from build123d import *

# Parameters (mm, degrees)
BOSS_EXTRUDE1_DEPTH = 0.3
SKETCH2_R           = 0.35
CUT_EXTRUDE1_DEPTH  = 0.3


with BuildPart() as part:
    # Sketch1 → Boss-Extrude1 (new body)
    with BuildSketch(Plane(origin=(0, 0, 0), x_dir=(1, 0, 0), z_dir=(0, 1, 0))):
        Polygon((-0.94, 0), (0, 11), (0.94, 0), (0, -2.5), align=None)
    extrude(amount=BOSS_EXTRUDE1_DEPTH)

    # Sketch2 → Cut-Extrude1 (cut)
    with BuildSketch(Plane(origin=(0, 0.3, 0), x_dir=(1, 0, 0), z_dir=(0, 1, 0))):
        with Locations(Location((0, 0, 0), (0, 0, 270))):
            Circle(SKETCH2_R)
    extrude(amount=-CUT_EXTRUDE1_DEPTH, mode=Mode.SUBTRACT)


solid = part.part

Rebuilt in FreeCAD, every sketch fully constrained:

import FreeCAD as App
import Part
import Sketcher
from FreeCAD import Vector
Q = App.Units.Quantity

doc = App.newDocument("Part")
body = doc.addObject("PartDesign::Body", "Body")

# Sketch on XZ plane
sketch1 = body.newObject("Sketcher::SketchObject", "Sketch")
sketch1.AttachmentSupport = (doc.getObject("XZ_Plane"), [""])
sketch1.MapMode = "FlatFace"
sketch1.addGeometry([
    Part.LineSegment(Vector(0, -11, 0), Vector(-0.94, 0, 0)),
    Part.LineSegment(Vector(-0.94, 0, 0), Vector(0, 2.5, 0)),
    Part.LineSegment(Vector(0, 2.5, 0), Vector(0.94, 0, 0)),
    Part.LineSegment(Vector(0.94, 0, 0), Vector(0, -11, 0)),
], False)
sketch1.addConstraint([
    Sketcher.Constraint("Coincident", 0, 2, 1, 1),
    Sketcher.Constraint("Coincident", 1, 2, 2, 1),
    Sketcher.Constraint("Coincident", 2, 2, 3, 1),
    Sketcher.Constraint("Coincident", 3, 2, 0, 1),
    Sketcher.Constraint("Symmetric", 0, 2, 2, 2, -1, 1),
    Sketcher.Constraint("PointOnObject", 0, 2, -1),
    Sketcher.Constraint("PointOnObject", 1, 2, -2),
    Sketcher.Constraint("PointOnObject", 3, 2, -2),
    Sketcher.Constraint("DistanceY", 3, 2, -1, 1, Q("11 mm")),
    Sketcher.Constraint("DistanceY", -1, 1, 1, 2, Q("2.5 mm")),
    Sketcher.Constraint("DistanceX", 0, 2, -1, 1, Q("0.94 mm")),
])
pad1 = body.newObject("PartDesign::Pad", "Pad")
pad1.Profile = sketch1
pad1.Length = 0.3
pad1.Reversed = True

# Sketch on XZ plane
sketch2 = body.newObject("Sketcher::SketchObject", "Sketch001")
sketch2.AttachmentSupport = (doc.getObject("XZ_Plane"), [""])
sketch2.MapMode = "FlatFace"
sketch2.AttachmentOffset = App.Placement(Vector(0, 0, -0.3), App.Rotation())
sketch2.addGeometry(Part.Circle(Vector(0, 0, 0), Vector(0, 0, 1), 0.35), False)
sketch2.addConstraint([
    Sketcher.Constraint("Coincident", 0, 3, -1, 1),
    Sketcher.Constraint("Diameter", 0, Q("0.7 mm")),
])
pocket1 = body.newObject("PartDesign::Pocket", "Pocket")
pocket1.Profile = sketch2
pocket1.Length = 0.3
pocket1.Reversed = True

doc.recompute()
